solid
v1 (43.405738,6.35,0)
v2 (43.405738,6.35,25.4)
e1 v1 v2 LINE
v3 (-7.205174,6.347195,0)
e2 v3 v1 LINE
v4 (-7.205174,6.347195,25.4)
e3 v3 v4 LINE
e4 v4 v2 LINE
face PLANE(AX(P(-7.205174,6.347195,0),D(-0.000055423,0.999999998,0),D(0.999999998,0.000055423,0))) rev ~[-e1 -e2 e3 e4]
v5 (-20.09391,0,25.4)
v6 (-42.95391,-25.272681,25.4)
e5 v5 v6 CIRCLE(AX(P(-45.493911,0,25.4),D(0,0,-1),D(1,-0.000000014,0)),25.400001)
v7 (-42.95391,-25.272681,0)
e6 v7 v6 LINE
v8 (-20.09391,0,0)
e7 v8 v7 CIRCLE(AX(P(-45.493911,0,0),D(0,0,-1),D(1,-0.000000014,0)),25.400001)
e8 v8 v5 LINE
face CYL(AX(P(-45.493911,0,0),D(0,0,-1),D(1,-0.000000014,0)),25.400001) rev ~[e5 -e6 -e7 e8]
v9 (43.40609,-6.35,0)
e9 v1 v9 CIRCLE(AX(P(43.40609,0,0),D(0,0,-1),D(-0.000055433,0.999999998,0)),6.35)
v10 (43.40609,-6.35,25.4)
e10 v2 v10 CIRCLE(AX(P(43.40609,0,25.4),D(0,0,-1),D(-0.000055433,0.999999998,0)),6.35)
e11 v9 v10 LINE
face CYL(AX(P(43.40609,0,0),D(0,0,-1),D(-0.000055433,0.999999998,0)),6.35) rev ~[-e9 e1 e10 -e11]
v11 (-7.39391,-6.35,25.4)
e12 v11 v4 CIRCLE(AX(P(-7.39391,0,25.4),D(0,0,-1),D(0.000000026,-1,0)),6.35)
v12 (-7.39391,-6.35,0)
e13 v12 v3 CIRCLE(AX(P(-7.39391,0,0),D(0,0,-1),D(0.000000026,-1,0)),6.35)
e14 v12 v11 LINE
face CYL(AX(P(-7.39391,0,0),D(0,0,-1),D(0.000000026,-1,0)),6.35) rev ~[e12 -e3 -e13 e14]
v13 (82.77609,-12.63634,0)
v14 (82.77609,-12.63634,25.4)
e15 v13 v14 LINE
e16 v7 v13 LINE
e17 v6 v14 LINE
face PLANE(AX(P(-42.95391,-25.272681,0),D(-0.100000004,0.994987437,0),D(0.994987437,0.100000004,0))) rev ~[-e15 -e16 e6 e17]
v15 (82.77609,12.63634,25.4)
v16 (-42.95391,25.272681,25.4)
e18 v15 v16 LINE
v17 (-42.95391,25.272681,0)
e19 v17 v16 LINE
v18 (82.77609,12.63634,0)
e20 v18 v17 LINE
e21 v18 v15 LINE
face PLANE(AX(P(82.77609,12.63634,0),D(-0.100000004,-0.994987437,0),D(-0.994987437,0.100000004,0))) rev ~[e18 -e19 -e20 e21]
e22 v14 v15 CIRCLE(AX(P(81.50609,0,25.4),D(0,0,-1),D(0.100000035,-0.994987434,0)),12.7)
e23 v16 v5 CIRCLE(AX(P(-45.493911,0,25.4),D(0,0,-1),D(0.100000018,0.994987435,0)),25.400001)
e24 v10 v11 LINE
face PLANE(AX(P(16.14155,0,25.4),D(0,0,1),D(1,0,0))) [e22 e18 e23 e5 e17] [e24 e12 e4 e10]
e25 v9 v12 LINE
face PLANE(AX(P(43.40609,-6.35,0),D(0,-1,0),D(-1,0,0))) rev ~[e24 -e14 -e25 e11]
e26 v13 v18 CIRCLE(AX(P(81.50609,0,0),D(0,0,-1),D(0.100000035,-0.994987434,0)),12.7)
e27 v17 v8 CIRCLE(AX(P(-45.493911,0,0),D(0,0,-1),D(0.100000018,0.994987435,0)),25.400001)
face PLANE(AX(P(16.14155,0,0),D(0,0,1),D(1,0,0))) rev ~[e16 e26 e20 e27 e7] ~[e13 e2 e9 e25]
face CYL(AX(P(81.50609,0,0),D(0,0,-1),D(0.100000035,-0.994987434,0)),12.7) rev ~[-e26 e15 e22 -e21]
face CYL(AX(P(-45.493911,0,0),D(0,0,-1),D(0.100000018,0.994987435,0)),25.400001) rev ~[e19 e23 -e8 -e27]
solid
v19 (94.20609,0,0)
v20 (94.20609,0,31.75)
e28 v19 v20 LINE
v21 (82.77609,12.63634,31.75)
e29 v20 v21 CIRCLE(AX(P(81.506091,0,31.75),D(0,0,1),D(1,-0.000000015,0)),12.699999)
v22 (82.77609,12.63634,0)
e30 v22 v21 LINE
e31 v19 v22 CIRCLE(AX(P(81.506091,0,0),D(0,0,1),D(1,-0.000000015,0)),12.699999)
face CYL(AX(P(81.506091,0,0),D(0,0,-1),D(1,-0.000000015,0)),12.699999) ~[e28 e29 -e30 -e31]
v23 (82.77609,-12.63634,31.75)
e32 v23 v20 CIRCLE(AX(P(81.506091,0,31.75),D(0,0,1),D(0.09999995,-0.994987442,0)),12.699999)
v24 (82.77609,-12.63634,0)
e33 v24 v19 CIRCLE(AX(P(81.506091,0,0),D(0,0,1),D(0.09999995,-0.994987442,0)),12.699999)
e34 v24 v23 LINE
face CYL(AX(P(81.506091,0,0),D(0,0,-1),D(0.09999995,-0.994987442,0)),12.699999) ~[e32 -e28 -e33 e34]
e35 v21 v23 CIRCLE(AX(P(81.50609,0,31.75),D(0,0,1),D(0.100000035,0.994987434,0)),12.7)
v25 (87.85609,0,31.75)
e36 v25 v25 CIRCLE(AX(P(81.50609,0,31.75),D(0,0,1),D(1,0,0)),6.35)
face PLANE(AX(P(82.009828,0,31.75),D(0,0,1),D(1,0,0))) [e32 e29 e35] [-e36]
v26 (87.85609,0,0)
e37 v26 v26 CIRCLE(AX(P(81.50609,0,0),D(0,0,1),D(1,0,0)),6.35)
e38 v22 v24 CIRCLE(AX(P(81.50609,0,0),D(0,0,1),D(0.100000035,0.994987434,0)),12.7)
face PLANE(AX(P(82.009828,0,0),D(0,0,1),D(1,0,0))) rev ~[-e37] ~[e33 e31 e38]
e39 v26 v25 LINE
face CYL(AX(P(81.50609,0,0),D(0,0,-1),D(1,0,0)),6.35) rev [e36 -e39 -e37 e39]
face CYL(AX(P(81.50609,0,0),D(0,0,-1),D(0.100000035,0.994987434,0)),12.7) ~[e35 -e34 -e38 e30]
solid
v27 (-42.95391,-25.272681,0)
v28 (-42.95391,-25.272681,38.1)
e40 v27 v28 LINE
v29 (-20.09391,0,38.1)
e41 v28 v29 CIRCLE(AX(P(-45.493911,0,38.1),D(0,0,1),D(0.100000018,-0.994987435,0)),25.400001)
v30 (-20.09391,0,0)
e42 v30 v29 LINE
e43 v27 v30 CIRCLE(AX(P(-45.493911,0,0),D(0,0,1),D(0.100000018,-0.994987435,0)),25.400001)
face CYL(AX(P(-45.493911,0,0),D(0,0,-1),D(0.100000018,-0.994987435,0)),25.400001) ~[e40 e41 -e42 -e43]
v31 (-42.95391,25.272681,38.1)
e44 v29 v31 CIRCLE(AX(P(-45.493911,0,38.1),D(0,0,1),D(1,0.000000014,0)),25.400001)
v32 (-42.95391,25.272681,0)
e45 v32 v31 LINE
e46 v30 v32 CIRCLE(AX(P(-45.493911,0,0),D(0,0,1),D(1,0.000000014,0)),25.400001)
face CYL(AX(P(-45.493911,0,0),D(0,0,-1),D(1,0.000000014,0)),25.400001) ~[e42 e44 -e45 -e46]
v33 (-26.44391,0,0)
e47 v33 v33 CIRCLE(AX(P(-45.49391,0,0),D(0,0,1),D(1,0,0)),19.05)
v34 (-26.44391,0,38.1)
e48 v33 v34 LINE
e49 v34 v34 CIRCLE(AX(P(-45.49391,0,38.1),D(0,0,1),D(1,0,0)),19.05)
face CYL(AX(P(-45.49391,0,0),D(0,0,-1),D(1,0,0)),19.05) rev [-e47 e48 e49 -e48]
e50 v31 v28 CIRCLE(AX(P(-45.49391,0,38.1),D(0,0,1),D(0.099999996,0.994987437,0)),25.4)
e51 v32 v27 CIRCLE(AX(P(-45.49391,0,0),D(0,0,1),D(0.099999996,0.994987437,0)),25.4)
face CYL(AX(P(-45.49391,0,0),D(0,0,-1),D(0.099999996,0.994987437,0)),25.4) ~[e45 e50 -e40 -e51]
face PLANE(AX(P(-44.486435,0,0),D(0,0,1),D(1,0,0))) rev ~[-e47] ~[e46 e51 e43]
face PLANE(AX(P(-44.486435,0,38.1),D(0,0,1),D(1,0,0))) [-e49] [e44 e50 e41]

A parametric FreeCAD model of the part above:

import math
import FreeCAD as App
import Part
import Sketcher
from FreeCAD import Vector
Q = App.Units.Quantity

doc = App.newDocument("Part")
body = doc.addObject("PartDesign::Body", "Body")

# Sketch on XY plane
sketch1 = body.newObject("Sketcher::SketchObject", "Sketch")
sketch1.AttachmentSupport = (doc.getObject("XY_Plane"), [""])
sketch1.MapMode = "FlatFace"
sketch1.addGeometry([
    Part.ArcOfCircle(Part.Circle(Vector(-45, 0, 0), Vector(0, 0, 1), 25), math.radians(-84), math.radians(0)),
    Part.ArcOfCircle(Part.Circle(Vector(-45, 0, 0), Vector(0, 0, 1), 25), math.radians(0), math.radians(84)),
    Part.ArcOfCircle(Part.Circle(Vector(-45, 0, 0), Vector(0, 0, 1), 25), math.radians(84), math.radians(276)),
    Part.Circle(Vector(-45, 0, 0), Vector(0, 0, 1), 19),
], False)
sketch1.addConstraint([
    Sketcher.Constraint("Tangent", 0, 2, 1, 1),
    Sketcher.Constraint("Tangent", 1, 2, 2, 1),
    Sketcher.Constraint("Tangent", 2, 2, 0, 1),
    Sketcher.Constraint("Coincident", 3, 3, 0, 3),
    Sketcher.Constraint("Symmetric", 1, 2, 2, 2, -1),
    Sketcher.Constraint("PointOnObject", 0, 2, -1),
    Sketcher.Constraint("Radius", 0, Q("1 in")),
    Sketcher.Constraint("Diameter", 3, Q("1.5 in")),
    Sketcher.Constraint("DistanceX", 0, 3, 1, 2, Q("0.1 in")),
    Sketcher.Constraint("DistanceX", 0, 3, -1, 1, Q("45.49391 mm")),
])
pad1 = body.newObject("PartDesign::Pad", "Pad")
pad1.Profile = sketch1
pad1.Length = Q("1.5 in")
body2 = doc.addObject("PartDesign::Body", "Body001")

# Sketch on XY plane
sketch2 = body2.newObject("Sketcher::SketchObject", "Sketch001")
sketch2.AttachmentSupport = (doc.getObject("XY_Plane001"), [""])
sketch2.MapMode = "FlatFace"
sketch2.addGeometry([
    Part.ArcOfCircle(Part.Circle(Vector(82, 0, 0), Vector(0, 0, 1), 13), math.radians(0), math.radians(84)),
    Part.ArcOfCircle(Part.Circle(Vector(82, 0, 0), Vector(0, 0, 1), 13), math.radians(84), math.radians(276)),
    Part.ArcOfCircle(Part.Circle(Vector(82, 0, 0), Vector(0, 0, 1), 13), math.radians(-84), math.radians(0)),
    Part.Circle(Vector(82, 0, 0), Vector(0, 0, 1), 6),
], False)
sketch2.addConstraint([
    Sketcher.Constraint("Tangent", 0, 2, 1, 1),
    Sketcher.Constraint("Tangent", 1, 2, 2, 1),
    Sketcher.Constraint("Tangent", 2, 2, 0, 1),
    Sketcher.Constraint("Coincident", 3, 3, 0, 3),
    Sketcher.Constraint("Symmetric", 0, 2, 1, 2, -1),
    Sketcher.Constraint("PointOnObject", 2, 2, -1),
    Sketcher.Constraint("Diameter", 3, Q("0.5 in")),
    Sketcher.Constraint("Radius", 0, Q("0.5 in")),
    Sketcher.Constraint("DistanceX", 0, 3, 0, 2, Q("0.05 in")),
    Sketcher.Constraint("DistanceX", -1, 1, 0, 3, Q("81.506091 mm")),
])
pad2 = body2.newObject("PartDesign::Pad", "Pad001")
pad2.Profile = sketch2
pad2.Length = Q("1.25 in")
body3 = doc.addObject("PartDesign::Body", "Body002")

# Sketch on XY plane
sketch3 = body3.newObject("Sketcher::SketchObject", "Sketch002")
sketch3.AttachmentSupport = (doc.getObject("XY_Plane002"), [""])
sketch3.MapMode = "FlatFace"
sketch3.addGeometry([
    Part.ArcOfCircle(Part.Circle(Vector(-45, 0, 0), Vector(0, 0, 1), 25), math.radians(0), math.radians(84)),  # 0
    Part.ArcOfCircle(Part.Circle(Vector(-45, 0, 0), Vector(0, 0, 1), 25), math.radians(-84), math.radians(0)),  # 1
    Part.LineSegment(Vector(-43, -25, 0), Vector(83, -13, 0)),  # 2
    Part.ArcOfCircle(Part.Circle(Vector(82, 0, 0), Vector(0, 0, 1), 13), math.radians(84), math.radians(276)),  # 3
    Part.LineSegment(Vector(83, 13, 0), Vector(-43, 25, 0)),  # 4
    Part.LineSegment(Vector(43, -6, 0), Vector(-7, -6, 0)),  # 5
    Part.ArcOfCircle(Part.Circle(Vector(-7, 0, 0), Vector(0, 0, 1), 6), math.radians(88), math.radians(270)),  # 6
    Part.LineSegment(Vector(-7, 6, 0), Vector(43, 6, 0)),  # 7
    Part.ArcOfCircle(Part.Circle(Vector(43, 0, 0), Vector(0, 0, 1), 6), math.radians(-90), math.radians(90)),  # 8
], False)
sketch3.addConstraint([
    Sketcher.Constraint("Tangent", 0, 1, 1, 2),
    Sketcher.Constraint("Tangent", 1, 1, 2, 1),
    Sketcher.Constraint("Tangent", 2, 2, 3, 2),
    Sketcher.Constraint("Tangent", 3, 1, 4, 1),
    Sketcher.Constraint("Tangent", 4, 2, 0, 2),
    Sketcher.Constraint("Tangent", 5, 2, 6, 2),
    Sketcher.Constraint("Coincident", 6, 1, 7, 1),
    Sketcher.Constraint("Tangent", 7, 2, 8, 2),
    Sketcher.Constraint("Tangent", 8, 1, 5, 1),
    Sketcher.Constraint("Horizontal", 5),
    Sketcher.Constraint("Equal", 0, 1),
    Sketcher.Constraint("Equal", 6, 8),
    Sketcher.Constraint("Symmetric", 2, 2, 3, 1, -1),
    Sketcher.Constraint("PointOnObject", 6, 3, -1),
    Sketcher.Constraint("PointOnObject", 0, 1, -1),
    Sketcher.Constraint("Radius", 0, Q("1 in")),
    Sketcher.Constraint("Radius", 3, Q("0.5 in")),
    Sketcher.Constraint("DistanceX", 5, 2, 5, 1, Q("2 in")),
    Sketcher.Constraint("Radius", 6, Q("0.25 in")),
    Sketcher.Constraint("DistanceX", 0, 3, 3, 3, Q("5 in")),
    Sketcher.Constraint("DistanceX", 1, 3, 6, 3, Q("1.5 in")),
    Sketcher.Constraint("DistanceX", 0, 3, -1, 1, Q("45.49391 mm")),
    Sketcher.Constraint("DistanceX", 7, 2, 8, 3, Q("0.000352 mm")),
])
pad3 = body3.newObject("PartDesign::Pad", "Pad002")
pad3.Profile = sketch3
pad3.Length = Q("1 in")

doc.recompute()
